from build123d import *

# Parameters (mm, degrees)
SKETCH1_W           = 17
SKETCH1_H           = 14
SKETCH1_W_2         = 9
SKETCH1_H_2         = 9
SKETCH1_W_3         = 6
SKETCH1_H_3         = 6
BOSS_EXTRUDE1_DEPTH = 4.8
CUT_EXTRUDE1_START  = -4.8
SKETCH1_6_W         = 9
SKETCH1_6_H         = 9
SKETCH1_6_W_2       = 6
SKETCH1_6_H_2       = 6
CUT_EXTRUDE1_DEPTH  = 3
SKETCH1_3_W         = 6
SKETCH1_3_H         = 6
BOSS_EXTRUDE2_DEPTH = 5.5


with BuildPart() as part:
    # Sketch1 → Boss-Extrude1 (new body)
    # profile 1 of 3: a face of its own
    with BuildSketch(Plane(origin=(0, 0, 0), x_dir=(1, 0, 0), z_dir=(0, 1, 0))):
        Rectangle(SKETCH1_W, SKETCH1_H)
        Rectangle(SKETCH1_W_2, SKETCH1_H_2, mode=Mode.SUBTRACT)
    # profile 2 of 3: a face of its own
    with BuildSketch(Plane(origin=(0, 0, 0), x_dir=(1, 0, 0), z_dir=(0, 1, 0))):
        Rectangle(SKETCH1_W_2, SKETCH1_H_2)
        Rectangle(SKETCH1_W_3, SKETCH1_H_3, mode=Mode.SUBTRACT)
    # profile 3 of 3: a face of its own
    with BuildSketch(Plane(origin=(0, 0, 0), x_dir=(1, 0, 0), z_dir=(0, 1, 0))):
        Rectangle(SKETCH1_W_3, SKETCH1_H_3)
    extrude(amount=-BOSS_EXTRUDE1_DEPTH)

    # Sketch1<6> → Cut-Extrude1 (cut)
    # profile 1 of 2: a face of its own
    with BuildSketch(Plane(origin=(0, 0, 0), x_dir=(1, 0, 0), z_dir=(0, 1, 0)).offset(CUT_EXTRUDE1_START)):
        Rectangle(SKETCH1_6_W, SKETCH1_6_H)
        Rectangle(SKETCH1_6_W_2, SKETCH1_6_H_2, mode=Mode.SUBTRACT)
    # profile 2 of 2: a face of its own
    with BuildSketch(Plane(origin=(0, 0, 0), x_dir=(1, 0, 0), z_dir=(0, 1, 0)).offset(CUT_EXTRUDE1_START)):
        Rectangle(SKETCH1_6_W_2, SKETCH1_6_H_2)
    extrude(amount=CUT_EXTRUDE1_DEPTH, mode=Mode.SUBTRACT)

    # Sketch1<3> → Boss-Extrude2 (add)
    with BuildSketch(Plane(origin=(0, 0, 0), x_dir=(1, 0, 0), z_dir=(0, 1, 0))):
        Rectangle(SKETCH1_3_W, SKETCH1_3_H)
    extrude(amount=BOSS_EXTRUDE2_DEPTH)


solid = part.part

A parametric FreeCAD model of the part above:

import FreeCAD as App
import Part
import Sketcher


def add_polygon(sketch, points):
    """Adds a closed chain of lines whose ends are joined by coincident constraints."""
    first, n = sketch.GeometryCount, len(points)
    for a, b in zip(points, points[1:] + points[:1]):
        sketch.addGeometry(Part.LineSegment(App.Vector(*a, 0), App.Vector(*b, 0)), False)
    for i in range(n):
        sketch.addConstraint(Sketcher.Constraint("Coincident", first + i, 2, first + (i + 1) % n, 1))

doc = App.newDocument("Part")
body = doc.addObject("PartDesign::Body", "Body")

sketch1 = body.newObject("Sketcher::SketchObject", "Sketch")
sketch1.AttachmentSupport = (doc.getObject("XZ_Plane"), [""])
sketch1.MapMode = "FlatFace"
add_polygon(sketch1, [(-8, -7), (-8, 7), (8, 7), (8, -7)])
sketch1.addConstraint([
    Sketcher.Constraint("Vertical", 0),
    Sketcher.Constraint("Horizontal", 1),
    Sketcher.Constraint("Vertical", 2),
    Sketcher.Constraint("Horizontal", 3),
    Sketcher.Constraint("Symmetric", 0, 2, 2, 2, -1, 1),
    Sketcher.Constraint("DistanceX", 1, 1, 1, 2, 17.0),
    Sketcher.Constraint("DistanceY", 0, 1, 0, 2, 14.0),
])
pad1 = body.newObject("PartDesign::Pad", "Pad")
pad1.Profile = sketch1
pad1.Length = 4.8

sketch2 = body.newObject("Sketcher::SketchObject", "Sketch001")
sketch2.AttachmentSupport = (doc.getObject("XZ_Plane"), [""])
sketch2.MapMode = "FlatFace"
sketch2.AttachmentOffset = App.Placement(App.Vector(0, 0, 4.8), App.Rotation())
add_polygon(sketch2, [(-4, -4), (-4, 4), (4, 4), (4, -4)])
sketch2.addConstraint([
    Sketcher.Constraint("Vertical", 0),
    Sketcher.Constraint("Horizontal", 1),
    Sketcher.Constraint("Vertical", 2),
    Sketcher.Constraint("Horizontal", 3),
    Sketcher.Constraint("Symmetric", 0, 2, 2, 2, -1, 1),
    Sketcher.Constraint("Equal", 3, 0),
    Sketcher.Constraint("DistanceX", 1, 1, 1, 2, 9.0),
])
pocket1 = body.newObject("PartDesign::Pocket", "Pocket")
pocket1.Profile = sketch2
pocket1.Length = 3

sketch3 = body.newObject("Sketcher::SketchObject", "Sketch002")
sketch3.AttachmentSupport = (doc.getObject("XZ_Plane"), [""])
sketch3.MapMode = "FlatFace"
add_polygon(sketch3, [(-3, -3), (-3, 3), (3, 3), (3, -3)])
sketch3.addConstraint([
    Sketcher.Constraint("Vertical", 0),
    Sketcher.Constraint("Horizontal", 1),
    Sketcher.Constraint("Vertical", 2),
    Sketcher.Constraint("Horizontal", 3),
    Sketcher.Constraint("Symmetric", 0, 2, 2, 2, -1, 1),
    Sketcher.Constraint("Equal", 3, 0),
    Sketcher.Constraint("DistanceX", 1, 1, 1, 2, 6.0),
])
pad2 = body.newObject("PartDesign::Pad", "Pad001")
pad2.Profile = sketch3
pad2.Length = 5.5
pad2.Reversed = True

doc.recompute()
